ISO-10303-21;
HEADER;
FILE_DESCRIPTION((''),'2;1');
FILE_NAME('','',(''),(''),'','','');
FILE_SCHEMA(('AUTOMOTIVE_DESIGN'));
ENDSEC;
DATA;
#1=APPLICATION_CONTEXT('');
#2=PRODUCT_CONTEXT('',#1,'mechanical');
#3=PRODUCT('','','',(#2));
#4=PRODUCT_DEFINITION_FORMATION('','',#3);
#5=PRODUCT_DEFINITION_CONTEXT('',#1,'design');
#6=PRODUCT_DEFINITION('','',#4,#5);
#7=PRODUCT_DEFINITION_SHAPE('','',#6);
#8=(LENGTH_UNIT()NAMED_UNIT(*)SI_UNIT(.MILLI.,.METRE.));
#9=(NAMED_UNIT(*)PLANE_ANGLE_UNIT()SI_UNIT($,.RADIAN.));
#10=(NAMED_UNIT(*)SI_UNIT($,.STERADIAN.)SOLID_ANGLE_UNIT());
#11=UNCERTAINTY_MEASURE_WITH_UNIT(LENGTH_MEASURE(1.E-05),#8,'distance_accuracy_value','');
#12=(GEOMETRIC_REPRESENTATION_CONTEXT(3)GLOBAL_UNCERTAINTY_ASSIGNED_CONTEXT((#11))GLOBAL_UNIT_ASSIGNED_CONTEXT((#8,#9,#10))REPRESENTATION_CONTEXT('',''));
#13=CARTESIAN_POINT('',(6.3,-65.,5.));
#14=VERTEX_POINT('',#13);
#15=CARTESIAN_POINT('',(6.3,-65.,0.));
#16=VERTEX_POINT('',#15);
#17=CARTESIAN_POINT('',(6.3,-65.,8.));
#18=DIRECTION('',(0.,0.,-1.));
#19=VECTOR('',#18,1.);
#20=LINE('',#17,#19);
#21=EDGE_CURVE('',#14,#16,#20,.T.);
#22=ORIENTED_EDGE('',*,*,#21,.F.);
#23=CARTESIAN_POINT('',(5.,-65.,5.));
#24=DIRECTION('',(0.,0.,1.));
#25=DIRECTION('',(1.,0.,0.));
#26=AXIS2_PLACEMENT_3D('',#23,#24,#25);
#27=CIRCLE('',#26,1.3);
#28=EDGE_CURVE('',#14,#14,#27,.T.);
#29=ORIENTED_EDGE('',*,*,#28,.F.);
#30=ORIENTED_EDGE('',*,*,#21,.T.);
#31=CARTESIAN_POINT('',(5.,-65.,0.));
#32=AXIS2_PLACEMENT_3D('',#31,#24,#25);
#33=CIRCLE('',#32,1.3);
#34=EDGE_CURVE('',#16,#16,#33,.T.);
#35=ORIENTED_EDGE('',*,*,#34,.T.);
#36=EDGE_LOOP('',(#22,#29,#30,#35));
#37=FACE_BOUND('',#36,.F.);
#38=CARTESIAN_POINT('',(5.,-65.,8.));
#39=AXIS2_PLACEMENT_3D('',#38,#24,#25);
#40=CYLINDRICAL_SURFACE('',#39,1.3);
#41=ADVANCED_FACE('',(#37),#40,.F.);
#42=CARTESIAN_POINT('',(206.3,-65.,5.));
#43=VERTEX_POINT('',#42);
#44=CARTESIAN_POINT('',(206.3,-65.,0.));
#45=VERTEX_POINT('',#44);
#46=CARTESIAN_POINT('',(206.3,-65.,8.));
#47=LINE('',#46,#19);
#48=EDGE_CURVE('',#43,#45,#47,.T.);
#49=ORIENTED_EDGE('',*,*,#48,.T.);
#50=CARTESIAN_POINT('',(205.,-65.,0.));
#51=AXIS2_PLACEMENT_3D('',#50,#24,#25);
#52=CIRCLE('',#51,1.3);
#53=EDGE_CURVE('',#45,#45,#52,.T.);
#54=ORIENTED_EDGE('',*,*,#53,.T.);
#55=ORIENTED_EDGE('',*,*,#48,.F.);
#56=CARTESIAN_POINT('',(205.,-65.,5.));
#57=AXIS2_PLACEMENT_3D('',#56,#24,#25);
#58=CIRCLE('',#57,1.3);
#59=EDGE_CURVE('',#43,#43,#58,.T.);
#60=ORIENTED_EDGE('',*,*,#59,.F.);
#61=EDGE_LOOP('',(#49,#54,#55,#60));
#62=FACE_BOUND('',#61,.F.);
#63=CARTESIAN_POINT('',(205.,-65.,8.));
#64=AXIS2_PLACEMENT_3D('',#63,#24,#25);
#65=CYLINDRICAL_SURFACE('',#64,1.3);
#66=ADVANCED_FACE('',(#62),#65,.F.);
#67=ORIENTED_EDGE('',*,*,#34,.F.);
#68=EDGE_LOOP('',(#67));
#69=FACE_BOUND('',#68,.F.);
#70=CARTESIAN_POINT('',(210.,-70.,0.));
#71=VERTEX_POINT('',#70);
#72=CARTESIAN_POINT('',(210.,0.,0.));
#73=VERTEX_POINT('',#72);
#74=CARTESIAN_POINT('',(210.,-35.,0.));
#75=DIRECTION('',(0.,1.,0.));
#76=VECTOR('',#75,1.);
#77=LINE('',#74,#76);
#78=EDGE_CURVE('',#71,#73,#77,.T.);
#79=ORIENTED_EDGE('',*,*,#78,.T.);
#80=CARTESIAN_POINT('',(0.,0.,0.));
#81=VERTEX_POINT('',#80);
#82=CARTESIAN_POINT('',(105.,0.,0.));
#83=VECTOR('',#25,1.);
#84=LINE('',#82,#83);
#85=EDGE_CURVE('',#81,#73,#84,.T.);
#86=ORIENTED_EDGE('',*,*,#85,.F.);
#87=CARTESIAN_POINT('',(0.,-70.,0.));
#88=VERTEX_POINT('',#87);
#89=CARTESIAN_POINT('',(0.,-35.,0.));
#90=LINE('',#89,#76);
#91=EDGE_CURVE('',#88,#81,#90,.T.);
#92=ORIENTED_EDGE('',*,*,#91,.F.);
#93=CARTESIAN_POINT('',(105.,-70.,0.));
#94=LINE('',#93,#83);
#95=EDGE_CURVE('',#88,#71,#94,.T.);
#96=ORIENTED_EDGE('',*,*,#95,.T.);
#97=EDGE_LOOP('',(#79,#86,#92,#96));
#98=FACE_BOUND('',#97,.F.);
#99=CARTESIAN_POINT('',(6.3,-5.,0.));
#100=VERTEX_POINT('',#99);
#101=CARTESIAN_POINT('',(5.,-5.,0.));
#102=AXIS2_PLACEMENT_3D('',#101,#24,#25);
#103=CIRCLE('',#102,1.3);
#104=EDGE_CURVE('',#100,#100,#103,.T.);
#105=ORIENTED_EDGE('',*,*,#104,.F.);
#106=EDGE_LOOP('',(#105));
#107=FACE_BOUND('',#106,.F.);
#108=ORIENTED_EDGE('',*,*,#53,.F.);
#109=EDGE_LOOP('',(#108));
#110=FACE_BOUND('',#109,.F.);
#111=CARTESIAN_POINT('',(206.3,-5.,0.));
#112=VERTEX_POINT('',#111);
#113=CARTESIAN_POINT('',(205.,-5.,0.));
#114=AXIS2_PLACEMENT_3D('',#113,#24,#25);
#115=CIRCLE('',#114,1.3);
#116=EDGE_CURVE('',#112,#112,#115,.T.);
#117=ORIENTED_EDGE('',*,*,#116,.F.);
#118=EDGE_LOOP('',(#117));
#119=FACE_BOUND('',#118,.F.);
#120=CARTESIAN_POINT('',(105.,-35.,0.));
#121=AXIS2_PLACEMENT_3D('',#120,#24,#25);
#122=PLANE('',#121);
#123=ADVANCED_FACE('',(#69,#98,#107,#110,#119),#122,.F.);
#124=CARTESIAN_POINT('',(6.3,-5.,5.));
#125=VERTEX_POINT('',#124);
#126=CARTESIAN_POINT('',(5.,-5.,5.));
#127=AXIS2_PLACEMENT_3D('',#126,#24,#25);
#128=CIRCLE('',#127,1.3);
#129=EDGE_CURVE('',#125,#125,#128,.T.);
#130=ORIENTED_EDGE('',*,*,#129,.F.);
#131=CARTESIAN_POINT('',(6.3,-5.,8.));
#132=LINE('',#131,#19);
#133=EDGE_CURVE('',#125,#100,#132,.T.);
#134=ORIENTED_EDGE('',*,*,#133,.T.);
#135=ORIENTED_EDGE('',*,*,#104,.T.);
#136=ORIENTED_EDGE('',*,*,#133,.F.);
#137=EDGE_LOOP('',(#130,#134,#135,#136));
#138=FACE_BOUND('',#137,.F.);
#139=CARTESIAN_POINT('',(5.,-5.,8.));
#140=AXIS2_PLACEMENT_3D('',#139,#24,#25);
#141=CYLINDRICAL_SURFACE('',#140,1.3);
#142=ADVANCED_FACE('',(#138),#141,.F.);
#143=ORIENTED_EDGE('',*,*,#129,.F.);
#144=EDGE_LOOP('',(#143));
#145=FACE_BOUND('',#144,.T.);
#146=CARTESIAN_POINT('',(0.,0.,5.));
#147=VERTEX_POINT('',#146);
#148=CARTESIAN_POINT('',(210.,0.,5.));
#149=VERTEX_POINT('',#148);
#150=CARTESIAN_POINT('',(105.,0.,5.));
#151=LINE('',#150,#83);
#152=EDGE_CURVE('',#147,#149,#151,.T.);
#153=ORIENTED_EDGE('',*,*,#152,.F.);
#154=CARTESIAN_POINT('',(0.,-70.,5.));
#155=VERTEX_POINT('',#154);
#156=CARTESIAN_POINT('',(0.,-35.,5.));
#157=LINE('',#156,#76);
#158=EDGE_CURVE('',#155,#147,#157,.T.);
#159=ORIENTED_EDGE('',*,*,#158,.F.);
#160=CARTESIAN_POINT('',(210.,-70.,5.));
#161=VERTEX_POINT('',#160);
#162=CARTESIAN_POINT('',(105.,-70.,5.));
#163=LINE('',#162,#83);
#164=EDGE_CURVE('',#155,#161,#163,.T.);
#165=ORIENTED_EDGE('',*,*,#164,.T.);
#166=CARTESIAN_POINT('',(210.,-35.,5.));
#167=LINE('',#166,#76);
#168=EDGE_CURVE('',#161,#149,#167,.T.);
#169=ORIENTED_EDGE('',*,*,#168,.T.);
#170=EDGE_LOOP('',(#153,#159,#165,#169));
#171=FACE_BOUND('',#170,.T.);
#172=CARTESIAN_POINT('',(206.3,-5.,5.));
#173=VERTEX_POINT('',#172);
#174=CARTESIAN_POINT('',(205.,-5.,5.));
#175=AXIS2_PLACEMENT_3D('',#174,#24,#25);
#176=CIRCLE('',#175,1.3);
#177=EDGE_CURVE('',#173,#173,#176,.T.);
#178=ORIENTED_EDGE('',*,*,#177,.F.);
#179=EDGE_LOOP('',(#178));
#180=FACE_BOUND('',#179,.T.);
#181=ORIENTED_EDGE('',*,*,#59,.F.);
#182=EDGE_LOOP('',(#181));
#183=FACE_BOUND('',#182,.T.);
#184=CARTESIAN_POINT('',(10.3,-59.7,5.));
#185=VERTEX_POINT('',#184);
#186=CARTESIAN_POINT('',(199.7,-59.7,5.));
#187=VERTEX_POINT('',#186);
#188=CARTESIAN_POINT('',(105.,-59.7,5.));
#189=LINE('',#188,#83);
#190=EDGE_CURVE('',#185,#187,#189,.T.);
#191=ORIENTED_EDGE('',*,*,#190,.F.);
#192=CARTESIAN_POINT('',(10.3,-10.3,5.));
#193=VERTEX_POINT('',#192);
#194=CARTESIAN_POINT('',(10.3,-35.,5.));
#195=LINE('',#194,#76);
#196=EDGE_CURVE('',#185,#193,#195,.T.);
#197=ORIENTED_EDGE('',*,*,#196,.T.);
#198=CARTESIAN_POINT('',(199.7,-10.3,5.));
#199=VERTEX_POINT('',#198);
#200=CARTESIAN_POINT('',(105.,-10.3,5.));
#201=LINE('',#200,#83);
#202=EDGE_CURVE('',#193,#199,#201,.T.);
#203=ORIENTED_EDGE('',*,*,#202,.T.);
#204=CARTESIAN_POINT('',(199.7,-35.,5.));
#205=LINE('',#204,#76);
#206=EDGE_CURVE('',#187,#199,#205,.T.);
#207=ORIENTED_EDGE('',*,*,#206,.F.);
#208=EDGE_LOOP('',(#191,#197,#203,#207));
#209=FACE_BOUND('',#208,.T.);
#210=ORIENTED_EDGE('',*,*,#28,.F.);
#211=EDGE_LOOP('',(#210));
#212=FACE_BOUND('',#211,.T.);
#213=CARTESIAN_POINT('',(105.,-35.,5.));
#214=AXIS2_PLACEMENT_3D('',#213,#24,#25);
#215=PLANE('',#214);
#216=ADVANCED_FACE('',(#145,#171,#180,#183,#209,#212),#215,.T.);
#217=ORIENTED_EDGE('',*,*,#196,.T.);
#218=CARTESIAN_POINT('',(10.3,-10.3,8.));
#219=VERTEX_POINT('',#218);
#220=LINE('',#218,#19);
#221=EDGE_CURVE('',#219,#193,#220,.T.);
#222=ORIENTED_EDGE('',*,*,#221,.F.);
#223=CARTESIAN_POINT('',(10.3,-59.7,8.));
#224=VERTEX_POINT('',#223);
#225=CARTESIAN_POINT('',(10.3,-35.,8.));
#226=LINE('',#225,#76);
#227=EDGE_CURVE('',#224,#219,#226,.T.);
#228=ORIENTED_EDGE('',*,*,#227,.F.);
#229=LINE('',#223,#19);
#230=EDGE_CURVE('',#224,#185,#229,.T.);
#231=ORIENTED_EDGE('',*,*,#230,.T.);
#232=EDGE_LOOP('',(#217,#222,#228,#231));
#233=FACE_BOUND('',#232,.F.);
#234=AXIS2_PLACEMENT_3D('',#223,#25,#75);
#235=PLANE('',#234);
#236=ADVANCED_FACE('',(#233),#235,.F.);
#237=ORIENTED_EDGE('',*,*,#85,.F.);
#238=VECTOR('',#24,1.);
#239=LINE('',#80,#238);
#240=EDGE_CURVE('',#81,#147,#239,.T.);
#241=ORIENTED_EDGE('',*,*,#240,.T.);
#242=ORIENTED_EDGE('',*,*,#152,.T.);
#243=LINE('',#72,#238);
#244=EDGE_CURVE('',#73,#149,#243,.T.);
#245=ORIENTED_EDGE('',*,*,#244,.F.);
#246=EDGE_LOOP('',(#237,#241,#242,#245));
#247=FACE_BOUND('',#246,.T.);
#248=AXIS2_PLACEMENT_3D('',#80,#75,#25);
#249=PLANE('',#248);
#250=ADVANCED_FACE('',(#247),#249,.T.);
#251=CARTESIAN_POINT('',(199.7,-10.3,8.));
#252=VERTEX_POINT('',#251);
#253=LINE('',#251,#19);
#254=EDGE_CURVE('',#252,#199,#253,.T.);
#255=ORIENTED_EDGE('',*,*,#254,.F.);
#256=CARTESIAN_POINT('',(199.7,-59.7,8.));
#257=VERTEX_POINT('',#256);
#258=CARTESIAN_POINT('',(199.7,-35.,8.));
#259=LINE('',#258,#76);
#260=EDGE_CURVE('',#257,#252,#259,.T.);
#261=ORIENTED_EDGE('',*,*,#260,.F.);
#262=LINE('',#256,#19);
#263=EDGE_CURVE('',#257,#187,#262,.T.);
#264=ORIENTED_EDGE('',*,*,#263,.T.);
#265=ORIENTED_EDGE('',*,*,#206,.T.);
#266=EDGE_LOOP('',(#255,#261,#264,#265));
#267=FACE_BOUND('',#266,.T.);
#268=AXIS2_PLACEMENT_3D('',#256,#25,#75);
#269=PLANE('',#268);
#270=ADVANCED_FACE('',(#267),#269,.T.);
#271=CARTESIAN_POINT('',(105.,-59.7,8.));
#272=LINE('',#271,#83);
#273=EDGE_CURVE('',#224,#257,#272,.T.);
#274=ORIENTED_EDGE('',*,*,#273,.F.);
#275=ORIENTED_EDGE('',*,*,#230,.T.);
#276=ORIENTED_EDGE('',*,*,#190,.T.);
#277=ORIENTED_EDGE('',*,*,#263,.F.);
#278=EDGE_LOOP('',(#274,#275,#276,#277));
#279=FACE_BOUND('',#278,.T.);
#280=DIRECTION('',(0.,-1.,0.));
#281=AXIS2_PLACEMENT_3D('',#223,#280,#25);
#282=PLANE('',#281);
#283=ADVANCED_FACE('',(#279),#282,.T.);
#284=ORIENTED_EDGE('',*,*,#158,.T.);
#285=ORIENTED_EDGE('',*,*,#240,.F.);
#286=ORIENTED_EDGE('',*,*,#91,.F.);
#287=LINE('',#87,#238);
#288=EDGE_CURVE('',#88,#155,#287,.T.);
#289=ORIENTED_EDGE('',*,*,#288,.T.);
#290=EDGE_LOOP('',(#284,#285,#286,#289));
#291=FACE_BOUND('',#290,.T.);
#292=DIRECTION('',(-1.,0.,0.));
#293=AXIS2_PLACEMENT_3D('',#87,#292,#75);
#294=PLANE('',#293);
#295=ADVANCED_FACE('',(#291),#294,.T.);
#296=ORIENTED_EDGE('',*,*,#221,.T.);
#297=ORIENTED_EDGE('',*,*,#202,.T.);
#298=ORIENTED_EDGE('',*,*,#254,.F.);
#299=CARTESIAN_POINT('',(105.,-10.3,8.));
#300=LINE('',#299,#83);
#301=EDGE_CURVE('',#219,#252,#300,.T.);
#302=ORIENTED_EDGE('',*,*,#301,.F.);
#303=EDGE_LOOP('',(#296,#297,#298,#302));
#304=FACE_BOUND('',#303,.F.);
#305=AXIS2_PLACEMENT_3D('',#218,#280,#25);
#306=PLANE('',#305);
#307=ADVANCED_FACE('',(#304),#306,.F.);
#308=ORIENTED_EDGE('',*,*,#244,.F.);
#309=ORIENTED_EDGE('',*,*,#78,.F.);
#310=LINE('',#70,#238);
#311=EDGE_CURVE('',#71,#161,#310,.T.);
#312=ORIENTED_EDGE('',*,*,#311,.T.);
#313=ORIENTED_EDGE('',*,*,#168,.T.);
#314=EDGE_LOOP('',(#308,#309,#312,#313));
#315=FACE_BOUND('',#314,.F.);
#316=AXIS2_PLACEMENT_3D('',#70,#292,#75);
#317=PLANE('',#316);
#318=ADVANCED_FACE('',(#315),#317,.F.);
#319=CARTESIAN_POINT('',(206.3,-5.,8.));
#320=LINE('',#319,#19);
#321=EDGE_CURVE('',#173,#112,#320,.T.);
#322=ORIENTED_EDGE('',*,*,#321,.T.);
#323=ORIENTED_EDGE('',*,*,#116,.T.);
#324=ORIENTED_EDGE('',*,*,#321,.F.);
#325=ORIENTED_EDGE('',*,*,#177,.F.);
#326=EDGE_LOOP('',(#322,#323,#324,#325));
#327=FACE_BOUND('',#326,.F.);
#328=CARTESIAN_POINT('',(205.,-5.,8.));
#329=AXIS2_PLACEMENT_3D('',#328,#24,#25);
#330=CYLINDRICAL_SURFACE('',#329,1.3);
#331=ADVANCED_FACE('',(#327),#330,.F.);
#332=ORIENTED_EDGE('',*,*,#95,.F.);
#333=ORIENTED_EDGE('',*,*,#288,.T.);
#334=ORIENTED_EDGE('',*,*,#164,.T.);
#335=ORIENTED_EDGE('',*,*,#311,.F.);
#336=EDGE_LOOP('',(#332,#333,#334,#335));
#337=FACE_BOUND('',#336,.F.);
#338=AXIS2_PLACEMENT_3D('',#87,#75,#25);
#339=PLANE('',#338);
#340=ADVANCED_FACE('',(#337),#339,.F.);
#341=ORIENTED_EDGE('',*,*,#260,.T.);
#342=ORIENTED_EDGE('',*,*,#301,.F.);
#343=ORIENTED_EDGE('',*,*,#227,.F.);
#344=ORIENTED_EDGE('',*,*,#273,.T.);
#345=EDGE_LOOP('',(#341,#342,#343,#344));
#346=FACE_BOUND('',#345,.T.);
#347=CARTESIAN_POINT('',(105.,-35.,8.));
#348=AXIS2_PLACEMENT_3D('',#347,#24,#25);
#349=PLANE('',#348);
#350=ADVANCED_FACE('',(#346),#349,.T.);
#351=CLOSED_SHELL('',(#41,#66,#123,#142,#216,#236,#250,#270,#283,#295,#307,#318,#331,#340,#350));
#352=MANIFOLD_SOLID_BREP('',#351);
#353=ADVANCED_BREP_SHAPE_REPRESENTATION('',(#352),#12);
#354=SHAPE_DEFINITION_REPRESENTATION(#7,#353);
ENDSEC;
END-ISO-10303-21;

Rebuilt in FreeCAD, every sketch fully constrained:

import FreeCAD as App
import Part
import Sketcher

V = App.Vector

doc = App.newDocument("Part")
body = doc.addObject("PartDesign::Body", "Body")

# Sketch on XY plane
sketch1 = body.newObject("Sketcher::SketchObject", "Sketch")
sketch1.AttachmentSupport = (doc.getObject("XY_Plane"), [""])
sketch1.MapMode = "FlatFace"
sketch1.addGeometry(Part.LineSegment(V(0, 0, 0), V(0, -70, 0)), False)
sketch1.addGeometry(Part.LineSegment(V(0, -70, 0), V(210, -70, 0)), False)
sketch1.addGeometry(Part.LineSegment(V(210, -70, 0), V(210, 0, 0)), False)
sketch1.addGeometry(Part.LineSegment(V(210, 0, 0), V(0, 0, 0)), False)
sketch1.addConstraint(Sketcher.Constraint("Coincident", 0, 2, 1, 1))
sketch1.addConstraint(Sketcher.Constraint("Coincident", 1, 2, 2, 1))
sketch1.addConstraint(Sketcher.Constraint("Coincident", 2, 2, 3, 1))
sketch1.addConstraint(Sketcher.Constraint("Coincident", 3, 2, 0, 1))
sketch1.addConstraint(Sketcher.Constraint("Vertical", 0))
sketch1.addConstraint(Sketcher.Constraint("Horizontal", 1))
sketch1.addConstraint(Sketcher.Constraint("Vertical", 2))
sketch1.addConstraint(Sketcher.Constraint("Horizontal", 3))
sketch1.addConstraint(Sketcher.Constraint("Coincident", 3, 2, -1, 1))
sketch1.addConstraint(Sketcher.Constraint("DistanceX", 1, 1, 1, 2, 210.0))
sketch1.addConstraint(Sketcher.Constraint("DistanceY", 0, 2, 0, 1, 70.0))
pad1 = body.newObject("PartDesign::Pad", "Pad")
pad1.Profile = sketch1
pad1.Length = 8

# Sketch on XY plane
sketch2 = body.newObject("Sketcher::SketchObject", "Sketch001")
sketch2.AttachmentSupport = (doc.getObject("XY_Plane"), [""])
sketch2.MapMode = "FlatFace"
sketch2.AttachmentOffset = App.Placement(V(0, 0, 8), App.Rotation())
sketch2.addGeometry(Part.LineSegment(V(0, 0, 0), V(0, -70, 0)), False)
sketch2.addGeometry(Part.LineSegment(V(0, -70, 0), V(210, -70, 0)), False)
sketch2.addGeometry(Part.LineSegment(V(210, -70, 0), V(210, 0, 0)), False)
sketch2.addGeometry(Part.LineSegment(V(210, 0, 0), V(0, 0, 0)), False)
sketch2.addGeometry(Part.LineSegment(V(199.7, -59.7, 0), V(10.3, -59.7, 0)), False)
sketch2.addGeometry(Part.LineSegment(V(10.3, -59.7, 0), V(10.3, -10.3, 0)), False)
sketch2.addGeometry(Part.LineSegment(V(10.3, -10.3, 0), V(199.7, -10.3, 0)), False)
sketch2.addGeometry(Part.LineSegment(V(199.7, -10.3, 0), V(199.7, -59.7, 0)), False)
sketch2.addConstraint(Sketcher.Constraint("Coincident", 0, 2, 1, 1))
sketch2.addConstraint(Sketcher.Constraint("Coincident", 1, 2, 2, 1))
sketch2.addConstraint(Sketcher.Constraint("Coincident", 2, 2, 3, 1))
sketch2.addConstraint(Sketcher.Constraint("Coincident", 3, 2, 0, 1))
sketch2.addConstraint(Sketcher.Constraint("Coincident", 4, 2, 5, 1))
sketch2.addConstraint(Sketcher.Constraint("Coincident", 5, 2, 6, 1))
sketch2.addConstraint(Sketcher.Constraint("Coincident", 6, 2, 7, 1))
sketch2.addConstraint(Sketcher.Constraint("Coincident", 7, 2, 4, 1))
sketch2.addConstraint(Sketcher.Constraint("Vertical", 0))
sketch2.addConstraint(Sketcher.Constraint("Horizontal", 1))
sketch2.addConstraint(Sketcher.Constraint("Vertical", 2))
sketch2.addConstraint(Sketcher.Constraint("Horizontal", 3))
sketch2.addConstraint(Sketcher.Constraint("Horizontal", 4))
sketch2.addConstraint(Sketcher.Constraint("Vertical", 5))
sketch2.addConstraint(Sketcher.Constraint("Horizontal", 6))
sketch2.addConstraint(Sketcher.Constraint("Vertical", 7))
sketch2.addConstraint(Sketcher.Constraint("Coincident", 3, 2, -1, 1))
sketch2.addConstraint(Sketcher.Constraint("DistanceX", 1, 1, 1, 2, 210.0))
sketch2.addConstraint(Sketcher.Constraint("DistanceY", 0, 2, 0, 1, 70.0))
sketch2.addConstraint(Sketcher.Constraint("DistanceX", 4, 2, 4, 1, 189.4))
sketch2.addConstraint(Sketcher.Constraint("DistanceY", 5, 1, 5, 2, 49.4))
sketch2.addConstraint(Sketcher.Constraint("DistanceX", -1, 1, 4, 2, 10.3))
sketch2.addConstraint(Sketcher.Constraint("DistanceY", 4, 2, -1, 1, 59.7))
pocket1 = body.newObject("PartDesign::Pocket", "Pocket")
pocket1.Profile = sketch2
pocket1.Length = 3

# Sketch on XY plane
sketch3 = body.newObject("Sketcher::SketchObject", "Sketch002")
sketch3.AttachmentSupport = (doc.getObject("XY_Plane"), [""])
sketch3.MapMode = "FlatFace"
sketch3.AttachmentOffset = App.Placement(V(0, 0, 8), App.Rotation())
sketch3.addGeometry(Part.Circle(V(5, -5, 0), V(0, 0, 1), 1.3), False)
sketch3.addGeometry(Part.Circle(V(205, -5, 0), V(0, 0, 1), 1.3), False)
sketch3.addGeometry(Part.Circle(V(205, -65, 0), V(0, 0, 1), 1.3), False)
sketch3.addGeometry(Part.Circle(V(5, -65, 0), V(0, 0, 1), 1.3), False)
sketch3.addConstraint(Sketcher.Constraint("Equal", 0, 1))
sketch3.addConstraint(Sketcher.Constraint("Equal", 1, 2))
sketch3.addConstraint(Sketcher.Constraint("Equal", 2, 3))
sketch3.addConstraint(Sketcher.Constraint("Horizontal", 0, 3, 1, 3))
sketch3.addConstraint(Sketcher.Constraint("Horizontal", 2, 3, 3, 3))
sketch3.addConstraint(Sketcher.Constraint("Vertical", 1, 3, 2, 3))
sketch3.addConstraint(Sketcher.Constraint("Vertical", 0, 3, 3, 3))
sketch3.addConstraint(Sketcher.Constraint("Diameter", 0, 2.6))
sketch3.addConstraint(Sketcher.Constraint("DistanceX", -1, 1, 0, 3, 5.0))
sketch3.addConstraint(Sketcher.Constraint("DistanceY", 0, 3, -1, 1, 5.0))
sketch3.addConstraint(Sketcher.Constraint("DistanceX", -1, 1, 1, 3, 205.0))
sketch3.addConstraint(Sketcher.Constraint("DistanceY", 2, 3, -1, 1, 65.0))
pocket2 = body.newObject("PartDesign::Pocket", "Pocket001")
pocket2.Profile = sketch3
pocket2.Length = 25

doc.recompute()
